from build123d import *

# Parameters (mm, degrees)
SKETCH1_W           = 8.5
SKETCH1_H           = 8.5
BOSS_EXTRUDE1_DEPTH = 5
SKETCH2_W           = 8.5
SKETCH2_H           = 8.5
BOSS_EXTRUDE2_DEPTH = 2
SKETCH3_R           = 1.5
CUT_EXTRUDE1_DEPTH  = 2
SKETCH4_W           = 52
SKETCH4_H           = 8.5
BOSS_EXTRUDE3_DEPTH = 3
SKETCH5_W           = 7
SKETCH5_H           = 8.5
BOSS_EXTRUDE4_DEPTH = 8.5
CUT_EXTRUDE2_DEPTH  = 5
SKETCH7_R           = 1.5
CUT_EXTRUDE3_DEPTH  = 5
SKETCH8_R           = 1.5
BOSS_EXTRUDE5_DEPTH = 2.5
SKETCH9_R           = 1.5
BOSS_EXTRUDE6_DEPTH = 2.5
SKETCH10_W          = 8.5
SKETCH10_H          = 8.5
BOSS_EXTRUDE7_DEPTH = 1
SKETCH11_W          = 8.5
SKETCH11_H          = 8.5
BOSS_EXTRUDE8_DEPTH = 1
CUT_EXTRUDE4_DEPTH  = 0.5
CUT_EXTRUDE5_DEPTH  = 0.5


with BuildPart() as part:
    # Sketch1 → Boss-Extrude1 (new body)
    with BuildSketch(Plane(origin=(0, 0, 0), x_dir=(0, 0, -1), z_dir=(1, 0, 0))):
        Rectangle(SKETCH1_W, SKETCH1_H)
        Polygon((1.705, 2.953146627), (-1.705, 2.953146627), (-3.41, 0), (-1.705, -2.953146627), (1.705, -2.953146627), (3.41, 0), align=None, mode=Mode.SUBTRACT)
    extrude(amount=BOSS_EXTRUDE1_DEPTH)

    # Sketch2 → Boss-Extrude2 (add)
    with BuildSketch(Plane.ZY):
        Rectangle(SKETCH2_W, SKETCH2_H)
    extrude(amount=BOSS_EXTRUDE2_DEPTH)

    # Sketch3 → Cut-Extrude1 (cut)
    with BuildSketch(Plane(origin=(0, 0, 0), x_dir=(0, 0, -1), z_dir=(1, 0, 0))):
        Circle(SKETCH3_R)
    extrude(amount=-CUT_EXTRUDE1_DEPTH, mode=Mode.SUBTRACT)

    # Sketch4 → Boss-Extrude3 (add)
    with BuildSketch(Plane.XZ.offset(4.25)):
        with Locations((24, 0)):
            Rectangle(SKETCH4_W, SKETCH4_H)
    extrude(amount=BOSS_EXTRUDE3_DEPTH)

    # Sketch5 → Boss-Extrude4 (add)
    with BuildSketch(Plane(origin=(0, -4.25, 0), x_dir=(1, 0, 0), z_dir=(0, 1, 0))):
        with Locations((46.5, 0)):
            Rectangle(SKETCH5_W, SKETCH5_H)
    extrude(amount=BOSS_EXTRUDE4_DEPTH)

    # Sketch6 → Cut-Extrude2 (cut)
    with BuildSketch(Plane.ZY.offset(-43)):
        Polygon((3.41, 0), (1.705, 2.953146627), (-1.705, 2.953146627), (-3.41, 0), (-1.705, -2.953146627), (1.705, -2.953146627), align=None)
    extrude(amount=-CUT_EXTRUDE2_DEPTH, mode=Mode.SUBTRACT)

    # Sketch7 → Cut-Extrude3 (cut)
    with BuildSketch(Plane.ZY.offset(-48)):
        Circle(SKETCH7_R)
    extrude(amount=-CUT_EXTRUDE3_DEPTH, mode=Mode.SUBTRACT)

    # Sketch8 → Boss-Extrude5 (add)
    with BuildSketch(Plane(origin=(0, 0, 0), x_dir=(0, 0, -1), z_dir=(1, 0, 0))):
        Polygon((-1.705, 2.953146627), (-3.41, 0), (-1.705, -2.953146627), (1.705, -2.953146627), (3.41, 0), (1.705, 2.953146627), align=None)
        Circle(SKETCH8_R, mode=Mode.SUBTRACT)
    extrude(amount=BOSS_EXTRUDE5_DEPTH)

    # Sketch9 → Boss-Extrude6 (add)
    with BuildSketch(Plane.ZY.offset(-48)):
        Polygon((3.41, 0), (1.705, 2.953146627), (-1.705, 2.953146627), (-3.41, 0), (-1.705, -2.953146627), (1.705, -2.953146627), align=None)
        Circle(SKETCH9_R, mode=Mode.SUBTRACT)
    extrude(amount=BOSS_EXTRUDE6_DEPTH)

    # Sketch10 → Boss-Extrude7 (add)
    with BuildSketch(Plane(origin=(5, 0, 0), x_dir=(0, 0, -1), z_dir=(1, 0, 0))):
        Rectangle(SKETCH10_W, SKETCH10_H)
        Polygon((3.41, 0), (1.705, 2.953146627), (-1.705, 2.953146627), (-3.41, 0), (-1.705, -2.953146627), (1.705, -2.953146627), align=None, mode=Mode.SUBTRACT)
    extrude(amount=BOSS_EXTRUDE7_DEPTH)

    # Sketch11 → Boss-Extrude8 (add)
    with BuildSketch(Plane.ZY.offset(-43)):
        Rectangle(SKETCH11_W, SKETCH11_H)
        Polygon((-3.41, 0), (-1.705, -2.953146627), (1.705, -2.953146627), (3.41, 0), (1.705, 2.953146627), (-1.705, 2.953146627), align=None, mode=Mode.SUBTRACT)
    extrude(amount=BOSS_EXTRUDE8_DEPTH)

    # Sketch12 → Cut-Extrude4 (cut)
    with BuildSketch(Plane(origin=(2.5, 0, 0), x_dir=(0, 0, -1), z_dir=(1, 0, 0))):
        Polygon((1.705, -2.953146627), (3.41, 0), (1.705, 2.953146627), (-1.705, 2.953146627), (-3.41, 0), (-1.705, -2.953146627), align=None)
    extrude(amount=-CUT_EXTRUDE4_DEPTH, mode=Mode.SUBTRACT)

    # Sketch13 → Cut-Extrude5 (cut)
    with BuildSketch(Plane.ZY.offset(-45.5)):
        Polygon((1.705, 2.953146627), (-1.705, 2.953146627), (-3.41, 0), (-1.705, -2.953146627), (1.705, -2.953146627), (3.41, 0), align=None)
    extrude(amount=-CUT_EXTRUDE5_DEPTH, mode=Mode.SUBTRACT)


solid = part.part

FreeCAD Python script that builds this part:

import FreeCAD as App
import Part
import Sketcher
Q = App.Units.Quantity

doc = App.newDocument("Part")
body = doc.addObject("PartDesign::Body", "Body")

sketch1 = doc.addObject("Sketcher::SketchObject", "Sketch")
body.addObject(sketch1)
sketch1.AttachmentSupport = (doc.YZ_Plane, [""])
sketch1.MapMode = "FlatFace"
sketch1.addGeometry([
    Part.LineSegment(App.Vector(4.25, 4.25, 0), App.Vector(-4.25, 4.25, 0)),
    Part.LineSegment(App.Vector(-4.25, 4.25, 0), App.Vector(-4.25, -4.25, 0)),
    Part.LineSegment(App.Vector(-4.25, -4.25, 0), App.Vector(4.25, -4.25, 0)),
    Part.LineSegment(App.Vector(4.25, -4.25, 0), App.Vector(4.25, 4.25, 0)),
    Part.LineSegment(App.Vector(2.953147, 1.705, 0), App.Vector(2.953147, -1.705, 0)),
    Part.LineSegment(App.Vector(2.953147, -1.705, 0), App.Vector(0, -3.41, 0)),
    Part.LineSegment(App.Vector(0, -3.41, 0), App.Vector(-2.953147, -1.705, 0)),
    Part.LineSegment(App.Vector(-2.953147, -1.705, 0), App.Vector(-2.953147, 1.705, 0)),
    Part.LineSegment(App.Vector(-2.953147, 1.705, 0), App.Vector(0, 3.41, 0)),
    Part.LineSegment(App.Vector(0, 3.41, 0), App.Vector(2.953147, 1.705, 0)),
], False)
sketch1.addConstraint([
    Sketcher.Constraint("Coincident", 0, 2, 1, 1),
    Sketcher.Constraint("Coincident", 1, 2, 2, 1),
    Sketcher.Constraint("Coincident", 2, 2, 3, 1),
    Sketcher.Constraint("Coincident", 3, 2, 0, 1),
    Sketcher.Constraint("Coincident", 4, 2, 5, 1),
    Sketcher.Constraint("Coincident", 5, 2, 6, 1),
    Sketcher.Constraint("Coincident", 6, 2, 7, 1),
    Sketcher.Constraint("Coincident", 7, 2, 8, 1),
    Sketcher.Constraint("Coincident", 8, 2, 9, 1),
    Sketcher.Constraint("Coincident", 9, 2, 4, 1),
    Sketcher.Constraint("Horizontal", 0),
    Sketcher.Constraint("Vertical", 1),
    Sketcher.Constraint("Horizontal", 2),
    Sketcher.Constraint("Vertical", 3),
    Sketcher.Constraint("Vertical", 4),
    Sketcher.Constraint("Vertical", 7),
    Sketcher.Constraint("Symmetric", 0, 2, 2, 2, -1, 1),
    Sketcher.Constraint("Symmetric", 4, 2, 7, 2, -1, 1),
    Sketcher.Constraint("Symmetric", 5, 2, 8, 2, -1, 1),
    Sketcher.Constraint("PointOnObject", 5, 2, -2),
    Sketcher.Constraint("Parallel", 6, 9),
    Sketcher.Constraint("Horizontal", 4, 2, 6, 2),
    Sketcher.Constraint("Equal", 2, 1),
    Sketcher.Constraint("Angle", 5, Q("-150 deg")),
    Sketcher.Constraint("DistanceX", 0, 2, 0, 1, Q("8.5 mm")),
    Sketcher.Constraint("DistanceY", 4, 2, 4, 1, Q("3.41 mm")),
    Sketcher.Constraint("Distance", 5, Q("3.41 mm")),
])
pad1 = doc.addObject("PartDesign::Pad", "Pad")
body.addObject(pad1)
pad1.Profile = sketch1
pad1.Length = 5

sketch2 = doc.addObject("Sketcher::SketchObject", "Sketch001")
body.addObject(sketch2)
sketch2.AttachmentSupport = (doc.YZ_Plane, [""])
sketch2.MapMode = "FlatFace"
sketch2.addGeometry([
    Part.LineSegment(App.Vector(4.25, -4.25, 0), App.Vector(-4.25, -4.25, 0)),
    Part.LineSegment(App.Vector(-4.25, -4.25, 0), App.Vector(-4.25, 4.25, 0)),
    Part.LineSegment(App.Vector(-4.25, 4.25, 0), App.Vector(4.25, 4.25, 0)),
    Part.LineSegment(App.Vector(4.25, 4.25, 0), App.Vector(4.25, -4.25, 0)),
], False)
sketch2.addConstraint([
    Sketcher.Constraint("Coincident", 0, 2, 1, 1),
    Sketcher.Constraint("Coincident", 1, 2, 2, 1),
    Sketcher.Constraint("Coincident", 2, 2, 3, 1),
    Sketcher.Constraint("Coincident", 3, 2, 0, 1),
    Sketcher.Constraint("Horizontal", 0),
    Sketcher.Constraint("Vertical", 1),
    Sketcher.Constraint("Horizontal", 2),
    Sketcher.Constraint("Vertical", 3),
    Sketcher.Constraint("Symmetric", 0, 2, 2, 2, -1, 1),
    Sketcher.Constraint("Equal", 2, 1),
    Sketcher.Constraint("DistanceX", 0, 2, 0, 1, Q("8.5 mm")),
])
pad2 = doc.addObject("PartDesign::Pad", "Pad001")
body.addObject(pad2)
pad2.Profile = sketch2
pad2.Length = 2
pad2.Reversed = True

sketch3 = doc.addObject("Sketcher::SketchObject", "Sketch002")
body.addObject(sketch3)
sketch3.AttachmentSupport = (doc.YZ_Plane, [""])
sketch3.MapMode = "FlatFace"
sketch3.addGeometry(Part.Circle(App.Vector(0, 0, 0), App.Vector(0, 0, 1), 1.5), False)
sketch3.addConstraint([
    Sketcher.Constraint("Coincident", 0, 3, -1, 1),
    Sketcher.Constraint("Diameter", 0, Q("3 mm")),
])
pocket1 = doc.addObject("PartDesign::Pocket", "Pocket")
body.addObject(pocket1)
pocket1.Profile = sketch3
pocket1.Length = 2

sketch4 = doc.addObject("Sketcher::SketchObject", "Sketch003")
body.addObject(sketch4)
sketch4.AttachmentSupport = (doc.XZ_Plane, [""])
sketch4.MapMode = "FlatFace"
sketch4.AttachmentOffset = App.Placement(App.Vector(0, 0, 4.25), App.Rotation())
sketch4.addGeometry([
    Part.LineSegment(App.Vector(-2, 4.25, 0), App.Vector(-2, -4.25, 0)),
    Part.LineSegment(App.Vector(-2, -4.25, 0), App.Vector(50, -4.25, 0)),
    Part.LineSegment(App.Vector(50, -4.25, 0), App.Vector(50, 4.25, 0)),
    Part.LineSegment(App.Vector(50, 4.25, 0), App.Vector(-2, 4.25, 0)),
], False)
sketch4.addConstraint([
    Sketcher.Constraint("Coincident", 0, 2, 1, 1),
    Sketcher.Constraint("Coincident", 1, 2, 2, 1),
    Sketcher.Constraint("Coincident", 2, 2, 3, 1),
    Sketcher.Constraint("Coincident", 3, 2, 0, 1),
    Sketcher.Constraint("Vertical", 0),
    Sketcher.Constraint("Horizontal", 1),
    Sketcher.Constraint("Vertical", 2),
    Sketcher.Constraint("Horizontal", 3),
    Sketcher.Constraint("DistanceX", 1, 1, 1, 2, Q("52 mm")),
    Sketcher.Constraint("DistanceY", 0, 2, 0, 1, Q("8.5 mm")),
    Sketcher.Constraint("DistanceX", 0, 2, -1, 1, Q("2 mm")),
    Sketcher.Constraint("DistanceY", 0, 2, -1, 1, Q("4.25 mm")),
])
pad3 = doc.addObject("PartDesign::Pad", "Pad002")
body.addObject(pad3)
pad3.Profile = sketch4
pad3.Length = 3

sketch5 = doc.addObject("Sketcher::SketchObject", "Sketch004")
body.addObject(sketch5)
sketch5.AttachmentSupport = (doc.XZ_Plane, [""])
sketch5.MapMode = "FlatFace"
sketch5.AttachmentOffset = App.Placement(App.Vector(0, 0, 4.25), App.Rotation())
sketch5.addGeometry([
    Part.LineSegment(App.Vector(43, -4.25, 0), App.Vector(43, 4.25, 0)),
    Part.LineSegment(App.Vector(43, 4.25, 0), App.Vector(50, 4.25, 0)),
    Part.LineSegment(App.Vector(50, 4.25, 0), App.Vector(50, -4.25, 0)),
    Part.LineSegment(App.Vector(50, -4.25, 0), App.Vector(43, -4.25, 0)),
], False)
sketch5.addConstraint([
    Sketcher.Constraint("Coincident", 0, 2, 1, 1),
    Sketcher.Constraint("Coincident", 1, 2, 2, 1),
    Sketcher.Constraint("Coincident", 2, 2, 3, 1),
    Sketcher.Constraint("Coincident", 3, 2, 0, 1),
    Sketcher.Constraint("Vertical", 0),
    Sketcher.Constraint("Horizontal", 1),
    Sketcher.Constraint("Vertical", 2),
    Sketcher.Constraint("Horizontal", 3),
    Sketcher.Constraint("DistanceX", 1, 1, 1, 2, Q("7 mm")),
    Sketcher.Constraint("DistanceY", 0, 1, 0, 2, Q("8.5 mm")),
    Sketcher.Constraint("DistanceX", -1, 1, 0, 2, Q("43 mm")),
    Sketcher.Constraint("DistanceY", -1, 1, 0, 2, Q("4.25 mm")),
])
pad4 = doc.addObject("PartDesign::Pad", "Pad003")
body.addObject(pad4)
pad4.Profile = sketch5
pad4.Length = 8.5
pad4.Reversed = True

sketch6 = doc.addObject("Sketcher::SketchObject", "Sketch005")
body.addObject(sketch6)
sketch6.AttachmentSupport = (doc.YZ_Plane, [""])
sketch6.MapMode = "FlatFace"
sketch6.AttachmentOffset = App.Placement(App.Vector(0, 0, 43), App.Rotation())
sketch6.addGeometry([
    Part.LineSegment(App.Vector(0, 3.41, 0), App.Vector(2.953147, 1.705, 0)),
    Part.LineSegment(App.Vector(2.953147, 1.705, 0), App.Vector(2.953147, -1.705, 0)),
    Part.LineSegment(App.Vector(2.953147, -1.705, 0), App.Vector(0, -3.41, 0)),
    Part.LineSegment(App.Vector(0, -3.41, 0), App.Vector(-2.953147, -1.705, 0)),
    Part.LineSegment(App.Vector(-2.953147, -1.705, 0), App.Vector(-2.953147, 1.705, 0)),
    Part.LineSegment(App.Vector(-2.953147, 1.705, 0), App.Vector(0, 3.41, 0)),
], False)
sketch6.addConstraint([
    Sketcher.Constraint("Coincident", 0, 2, 1, 1),
    Sketcher.Constraint("Coincident", 1, 2, 2, 1),
    Sketcher.Constraint("Coincident", 2, 2, 3, 1),
    Sketcher.Constraint("Coincident", 3, 2, 4, 1),
    Sketcher.Constraint("Coincident", 4, 2, 5, 1),
    Sketcher.Constraint("Coincident", 5, 2, 0, 1),
    Sketcher.Constraint("Vertical", 1),
    Sketcher.Constraint("Vertical", 4),
    Sketcher.Constraint("Symmetric", 0, 2, 3, 2, -1, 1),
    Sketcher.Constraint("Symmetric", 2, 2, 5, 2, -1, 1),
    Sketcher.Constraint("PointOnObject", 2, 2, -2),
    Sketcher.Constraint("Parallel", 2, 5),
    Sketcher.Constraint("Horizontal", 1, 2, 3, 2),
    Sketcher.Constraint("Angle", 0, Q("-30 deg")),
    Sketcher.Constraint("DistanceY", 1, 2, 1, 1, Q("3.41 mm")),
    Sketcher.Constraint("Distance", 0, Q("3.41 mm")),
])
pocket2 = doc.addObject("PartDesign::Pocket", "Pocket001")
body.addObject(pocket2)
pocket2.Profile = sketch6
pocket2.Length = 5
pocket2.Reversed = True

sketch7 = doc.addObject("Sketcher::SketchObject", "Sketch006")
body.addObject(sketch7)
sketch7.AttachmentSupport = (doc.YZ_Plane, [""])
sketch7.MapMode = "FlatFace"
sketch7.AttachmentOffset = App.Placement(App.Vector(0, 0, 48), App.Rotation())
sketch7.addGeometry(Part.Circle(App.Vector(0, 0, 0), App.Vector(0, 0, 1), 1.5), False)
sketch7.addConstraint([
    Sketcher.Constraint("Coincident", 0, 3, -1, 1),
    Sketcher.Constraint("Diameter", 0, Q("3 mm")),
])
pocket3 = doc.addObject("PartDesign::Pocket", "Pocket002")
body.addObject(pocket3)
pocket3.Profile = sketch7
pocket3.Length = 5
pocket3.Reversed = True

sketch8 = doc.addObject("Sketcher::SketchObject", "Sketch007")
body.addObject(sketch8)
sketch8.AttachmentSupport = (doc.YZ_Plane, [""])
sketch8.MapMode = "FlatFace"
sketch8.addGeometry([
    Part.LineSegment(App.Vector(2.953147, 1.705, 0), App.Vector(0, 3.41, 0)),
    Part.LineSegment(App.Vector(0, 3.41, 0), App.Vector(-2.953147, 1.705, 0)),
    Part.LineSegment(App.Vector(-2.953147, 1.705, 0), App.Vector(-2.953147, -1.705, 0)),
    Part.LineSegment(App.Vector(-2.953147, -1.705, 0), App.Vector(0, -3.41, 0)),
    Part.LineSegment(App.Vector(0, -3.41, 0), App.Vector(2.953147, -1.705, 0)),
    Part.LineSegment(App.Vector(2.953147, -1.705, 0), App.Vector(2.953147, 1.705, 0)),
    Part.Circle(App.Vector(0, 0, 0), App.Vector(0, 0, 1), 1.5),
], False)
sketch8.addConstraint([
    Sketcher.Constraint("Coincident", 0, 2, 1, 1),
    Sketcher.Constraint("Coincident", 1, 2, 2, 1),
    Sketcher.Constraint("Coincident", 2, 2, 3, 1),
    Sketcher.Constraint("Coincident", 3, 2, 4, 1),
    Sketcher.Constraint("Coincident", 4, 2, 5, 1),
    Sketcher.Constraint("Coincident", 5, 2, 0, 1),
    Sketcher.Constraint("Vertical", 2),
    Sketcher.Constraint("Vertical", 5),
    Sketcher.Constraint("Coincident", 6, 3, -1, 1),
    Sketcher.Constraint("Symmetric", 0, 2, 3, 2, -1, 1),
    Sketcher.Constraint("Symmetric", 1, 2, 4, 2, -1, 1),
    Sketcher.Constraint("PointOnObject", 0, 2, -2),
    Sketcher.Constraint("Parallel", 0, 3),
    Sketcher.Constraint("Horizontal", 2, 2, 4, 2),
    Sketcher.Constraint("Diameter", 6, Q("3 mm")),
    Sketcher.Constraint("Angle", 0, Q("150 deg")),
    Sketcher.Constraint("DistanceY", 2, 2, 2, 1, Q("3.41 mm")),
    Sketcher.Constraint("Distance", 0, Q("3.41 mm")),
])
pad5 = doc.addObject("PartDesign::Pad", "Pad004")
body.addObject(pad5)
pad5.Profile = sketch8
pad5.Length = 2.5

sketch9 = doc.addObject("Sketcher::SketchObject", "Sketch008")
body.addObject(sketch9)
sketch9.AttachmentSupport = (doc.YZ_Plane, [""])
sketch9.MapMode = "FlatFace"
sketch9.AttachmentOffset = App.Placement(App.Vector(0, 0, 48), App.Rotation())
sketch9.addGeometry([
    Part.LineSegment(App.Vector(0, 3.41, 0), App.Vector(2.953147, 1.705, 0)),
    Part.LineSegment(App.Vector(2.953147, 1.705, 0), App.Vector(2.953147, -1.705, 0)),
    Part.LineSegment(App.Vector(2.953147, -1.705, 0), App.Vector(0, -3.41, 0)),
    Part.LineSegment(App.Vector(0, -3.41, 0), App.Vector(-2.953147, -1.705, 0)),
    Part.LineSegment(App.Vector(-2.953147, -1.705, 0), App.Vector(-2.953147, 1.705, 0)),
    Part.LineSegment(App.Vector(-2.953147, 1.705, 0), App.Vector(0, 3.41, 0)),
    Part.Circle(App.Vector(0, 0, 0), App.Vector(0, 0, 1), 1.5),
], False)
sketch9.addConstraint([
    Sketcher.Constraint("Coincident", 0, 2, 1, 1),
    Sketcher.Constraint("Coincident", 1, 2, 2, 1),
    Sketcher.Constraint("Coincident", 2, 2, 3, 1),
    Sketcher.Constraint("Coincident", 3, 2, 4, 1),
    Sketcher.Constraint("Coincident", 4, 2, 5, 1),
    Sketcher.Constraint("Coincident", 5, 2, 0, 1),
    Sketcher.Constraint("Vertical", 1),
    Sketcher.Constraint("Vertical", 4),
    Sketcher.Constraint("Coincident", 6, 3, -1, 1),
    Sketcher.Constraint("Symmetric", 0, 2, 3, 2, -1, 1),
    Sketcher.Constraint("Symmetric", 2, 2, 5, 2, -1, 1),
    Sketcher.Constraint("PointOnObject", 2, 2, -2),
    Sketcher.Constraint("Parallel", 2, 5),
    Sketcher.Constraint("Horizontal", 1, 2, 3, 2),
    Sketcher.Constraint("Diameter", 6, Q("3 mm")),
    Sketcher.Constraint("Angle", 0, Q("-30 deg")),
    Sketcher.Constraint("DistanceY", 1, 2, 1, 1, Q("3.41 mm")),
    Sketcher.Constraint("Distance", 0, Q("3.41 mm")),
])
pad6 = doc.addObject("PartDesign::Pad", "Pad005")
body.addObject(pad6)
pad6.Profile = sketch9
pad6.Length = 2.5
pad6.Reversed = True

sketch10 = doc.addObject("Sketcher::SketchObject", "Sketch009")
body.addObject(sketch10)
sketch10.AttachmentSupport = (doc.YZ_Plane, [""])
sketch10.MapMode = "FlatFace"
sketch10.AttachmentOffset = App.Placement(App.Vector(0, 0, 5), App.Rotation())
sketch10.addGeometry([
    Part.LineSegment(App.Vector(4.25, 4.25, 0), App.Vector(-4.25, 4.25, 0)),
    Part.LineSegment(App.Vector(-4.25, 4.25, 0), App.Vector(-4.25, -4.25, 0)),
    Part.LineSegment(App.Vector(-4.25, -4.25, 0), App.Vector(4.25, -4.25, 0)),
    Part.LineSegment(App.Vector(4.25, -4.25, 0), App.Vector(4.25, 4.25, 0)),
    Part.LineSegment(App.Vector(2.953147, -1.705, 0), App.Vector(0, -3.41, 0)),
    Part.LineSegment(App.Vector(0, -3.41, 0), App.Vector(-2.953147, -1.705, 0)),
    Part.LineSegment(App.Vector(-2.953147, -1.705, 0), App.Vector(-2.953147, 1.705, 0)),
    Part.LineSegment(App.Vector(-2.953147, 1.705, 0), App.Vector(0, 3.41, 0)),
    Part.LineSegment(App.Vector(0, 3.41, 0), App.Vector(2.953147, 1.705, 0)),
    Part.LineSegment(App.Vector(2.953147, 1.705, 0), App.Vector(2.953147, -1.705, 0)),
], False)
sketch10.addConstraint([
    Sketcher.Constraint("Coincident", 0, 2, 1, 1),
    Sketcher.Constraint("Coincident", 1, 2, 2, 1),
    Sketcher.Constraint("Coincident", 2, 2, 3, 1),
    Sketcher.Constraint("Coincident", 3, 2, 0, 1),
    Sketcher.Constraint("Coincident", 4, 2, 5, 1),
    Sketcher.Constraint("Coincident", 5, 2, 6, 1),
    Sketcher.Constraint("Coincident", 6, 2, 7, 1),
    Sketcher.Constraint("Coincident", 7, 2, 8, 1),
    Sketcher.Constraint("Coincident", 8, 2, 9, 1),
    Sketcher.Constraint("Coincident", 9, 2, 4, 1),
    Sketcher.Constraint("Horizontal", 0),
    Sketcher.Constraint("Vertical", 1),
    Sketcher.Constraint("Horizontal", 2),
    Sketcher.Constraint("Vertical", 3),
    Sketcher.Constraint("Vertical", 6),
    Sketcher.Constraint("Vertical", 9),
    Sketcher.Constraint("Symmetric", 0, 2, 2, 2, -1, 1),
    Sketcher.Constraint("Symmetric", 4, 2, 7, 2, -1, 1),
    Sketcher.Constraint("Symmetric", 5, 2, 8, 2, -1, 1),
    Sketcher.Constraint("PointOnObject", 4, 2, -2),
    Sketcher.Constraint("Parallel", 4, 7),
    Sketcher.Constraint("Horizontal", 6, 2, 8, 2),
    Sketcher.Constraint("Equal", 2, 1),
    Sketcher.Constraint("Angle", 4, Q("-150 deg")),
    Sketcher.Constraint("DistanceX", 0, 2, 0, 1, Q("8.5 mm")),
    Sketcher.Constraint("DistanceY", 6, 1, 6, 2, Q("3.41 mm")),
    Sketcher.Constraint("Distance", 4, Q("3.41 mm")),
])
pad7 = doc.addObject("PartDesign::Pad", "Pad006")
body.addObject(pad7)
pad7.Profile = sketch10
pad7.Length = 1

sketch11 = doc.addObject("Sketcher::SketchObject", "Sketch010")
body.addObject(sketch11)
sketch11.AttachmentSupport = (doc.YZ_Plane, [""])
sketch11.MapMode = "FlatFace"
sketch11.AttachmentOffset = App.Placement(App.Vector(0, 0, 43), App.Rotation())
sketch11.addGeometry([
    Part.LineSegment(App.Vector(4.25, -4.25, 0), App.Vector(-4.25, -4.25, 0)),
    Part.LineSegment(App.Vector(-4.25, -4.25, 0), App.Vector(-4.25, 4.25, 0)),
    Part.LineSegment(App.Vector(-4.25, 4.25, 0), App.Vector(4.25, 4.25, 0)),
    Part.LineSegment(App.Vector(4.25, 4.25, 0), App.Vector(4.25, -4.25, 0)),
    Part.LineSegment(App.Vector(-2.953147, -1.705, 0), App.Vector(0, -3.41, 0)),
    Part.LineSegment(App.Vector(0, -3.41, 0), App.Vector(2.953147, -1.705, 0)),
    Part.LineSegment(App.Vector(2.953147, -1.705, 0), App.Vector(2.953147, 1.705, 0)),
    Part.LineSegment(App.Vector(2.953147, 1.705, 0), App.Vector(0, 3.41, 0)),
    Part.LineSegment(App.Vector(0, 3.41, 0), App.Vector(-2.953147, 1.705, 0)),
    Part.LineSegment(App.Vector(-2.953147, 1.705, 0), App.Vector(-2.953147, -1.705, 0)),
], False)
sketch11.addConstraint([
    Sketcher.Constraint("Coincident", 0, 2, 1, 1),
    Sketcher.Constraint("Coincident", 1, 2, 2, 1),
    Sketcher.Constraint("Coincident", 2, 2, 3, 1),
    Sketcher.Constraint("Coincident", 3, 2, 0, 1),
    Sketcher.Constraint("Coincident", 4, 2, 5, 1),
    Sketcher.Constraint("Coincident", 5, 2, 6, 1),
    Sketcher.Constraint("Coincident", 6, 2, 7, 1),
    Sketcher.Constraint("Coincident", 7, 2, 8, 1),
    Sketcher.Constraint("Coincident", 8, 2, 9, 1),
    Sketcher.Constraint("Coincident", 9, 2, 4, 1),
    Sketcher.Constraint("Horizontal", 0),
    Sketcher.Constraint("Vertical", 1),
    Sketcher.Constraint("Horizontal", 2),
    Sketcher.Constraint("Vertical", 3),
    Sketcher.Constraint("Vertical", 6),
    Sketcher.Constraint("Vertical", 9),
    Sketcher.Constraint("Symmetric", 0, 2, 2, 2, -1, 1),
    Sketcher.Constraint("Symmetric", 4, 2, 7, 2, -1, 1),
    Sketcher.Constraint("Symmetric", 5, 2, 8, 2, -1, 1),
    Sketcher.Constraint("PointOnObject", 4, 2, -2),
    Sketcher.Constraint("Parallel", 4, 7),
    Sketcher.Constraint("Horizontal", 6, 2, 8, 2),
    Sketcher.Constraint("Equal", 2, 1),
    Sketcher.Constraint("Angle", 4, Q("-30 deg")),
    Sketcher.Constraint("DistanceX", 0, 2, 0, 1, Q("8.5 mm")),
    Sketcher.Constraint("DistanceY", 6, 1, 6, 2, Q("3.41 mm")),
    Sketcher.Constraint("Distance", 4, Q("3.41 mm")),
])
pad8 = doc.addObject("PartDesign::Pad", "Pad007")
body.addObject(pad8)
pad8.Profile = sketch11
pad8.Length = 1
pad8.Reversed = True

sketch12 = doc.addObject("Sketcher::SketchObject", "Sketch011")
body.addObject(sketch12)
sketch12.AttachmentSupport = (doc.YZ_Plane, [""])
sketch12.MapMode = "FlatFace"
sketch12.AttachmentOffset = App.Placement(App.Vector(0, 0, 2.5), App.Rotation())
sketch12.addGeometry([
    Part.LineSegment(App.Vector(-2.953147, -1.705, 0), App.Vector(0, -3.41, 0)),
    Part.LineSegment(App.Vector(0, -3.41, 0), App.Vector(2.953147, -1.705, 0)),
    Part.LineSegment(App.Vector(2.953147, -1.705, 0), App.Vector(2.953147, 1.705, 0)),
    Part.LineSegment(App.Vector(2.953147, 1.705, 0), App.Vector(0, 3.41, 0)),
    Part.LineSegment(App.Vector(0, 3.41, 0), App.Vector(-2.953147, 1.705, 0)),
    Part.LineSegment(App.Vector(-2.953147, 1.705, 0), App.Vector(-2.953147, -1.705, 0)),
], False)
sketch12.addConstraint([
    Sketcher.Constraint("Coincident", 0, 2, 1, 1),
    Sketcher.Constraint("Coincident", 1, 2, 2, 1),
    Sketcher.Constraint("Coincident", 2, 2, 3, 1),
    Sketcher.Constraint("Coincident", 3, 2, 4, 1),
    Sketcher.Constraint("Coincident", 4, 2, 5, 1),
    Sketcher.Constraint("Coincident", 5, 2, 0, 1),
    Sketcher.Constraint("Vertical", 2),
    Sketcher.Constraint("Vertical", 5),
    Sketcher.Constraint("Symmetric", 0, 2, 3, 2, -1, 1),
    Sketcher.Constraint("Symmetric", 1, 2, 4, 2, -1, 1),
    Sketcher.Constraint("PointOnObject", 0, 2, -2),
    Sketcher.Constraint("Parallel", 0, 3),
    Sketcher.Constraint("Horizontal", 2, 2, 4, 2),
    Sketcher.Constraint("Angle", 0, Q("-30 deg")),
    Sketcher.Constraint("DistanceY", 2, 1, 2, 2, Q("3.41 mm")),
    Sketcher.Constraint("Distance", 0, Q("3.41 mm")),
])
pocket4 = doc.addObject("PartDesign::Pocket", "Pocket003")
body.addObject(pocket4)
pocket4.Profile = sketch12
pocket4.Length = 0.5

sketch13 = doc.addObject("Sketcher::SketchObject", "Sketch012")
body.addObject(sketch13)
sketch13.AttachmentSupport = (doc.YZ_Plane, [""])
sketch13.MapMode = "FlatFace"
sketch13.AttachmentOffset = App.Placement(App.Vector(0, 0, 45.5), App.Rotation())
sketch13.addGeometry([
    Part.LineSegment(App.Vector(2.953147, 1.705, 0), App.Vector(2.953147, -1.705, 0)),
    Part.LineSegment(App.Vector(2.953147, -1.705, 0), App.Vector(0, -3.41, 0)),
    Part.LineSegment(App.Vector(0, -3.41, 0), App.Vector(-2.953147, -1.705, 0)),
    Part.LineSegment(App.Vector(-2.953147, -1.705, 0), App.Vector(-2.953147, 1.705, 0)),
    Part.LineSegment(App.Vector(-2.953147, 1.705, 0), App.Vector(0, 3.41, 0)),
    Part.LineSegment(App.Vector(0, 3.41, 0), App.Vector(2.953147, 1.705, 0)),
], False)
sketch13.addConstraint([
    Sketcher.Constraint("Coincident", 0, 2, 1, 1),
    Sketcher.Constraint("Coincident", 1, 2, 2, 1),
    Sketcher.Constraint("Coincident", 2, 2, 3, 1),
    Sketcher.Constraint("Coincident", 3, 2, 4, 1),
    Sketcher.Constraint("Coincident", 4, 2, 5, 1),
    Sketcher.Constraint("Coincident", 5, 2, 0, 1),
    Sketcher.Constraint("Vertical", 0),
    Sketcher.Constraint("Vertical", 3),
    Sketcher.Constraint("Symmetric", 0, 2, 3, 2, -1, 1),
    Sketcher.Constraint("Symmetric", 1, 2, 4, 2, -1, 1),
    Sketcher.Constraint("PointOnObject", 1, 2, -2),
    Sketcher.Constraint("Parallel", 2, 5),
    Sketcher.Constraint("Horizontal", 0, 2, 2, 2),
    Sketcher.Constraint("Angle", 1, Q("-150 deg")),
    Sketcher.Constraint("DistanceY", 0, 2, 0, 1, Q("3.41 mm")),
    Sketcher.Constraint("Distance", 1, Q("3.41 mm")),
])
pocket5 = doc.addObject("PartDesign::Pocket", "Pocket004")
body.addObject(pocket5)
pocket5.Profile = sketch13
pocket5.Length = 0.5
pocket5.Reversed = True

doc.recompute()
